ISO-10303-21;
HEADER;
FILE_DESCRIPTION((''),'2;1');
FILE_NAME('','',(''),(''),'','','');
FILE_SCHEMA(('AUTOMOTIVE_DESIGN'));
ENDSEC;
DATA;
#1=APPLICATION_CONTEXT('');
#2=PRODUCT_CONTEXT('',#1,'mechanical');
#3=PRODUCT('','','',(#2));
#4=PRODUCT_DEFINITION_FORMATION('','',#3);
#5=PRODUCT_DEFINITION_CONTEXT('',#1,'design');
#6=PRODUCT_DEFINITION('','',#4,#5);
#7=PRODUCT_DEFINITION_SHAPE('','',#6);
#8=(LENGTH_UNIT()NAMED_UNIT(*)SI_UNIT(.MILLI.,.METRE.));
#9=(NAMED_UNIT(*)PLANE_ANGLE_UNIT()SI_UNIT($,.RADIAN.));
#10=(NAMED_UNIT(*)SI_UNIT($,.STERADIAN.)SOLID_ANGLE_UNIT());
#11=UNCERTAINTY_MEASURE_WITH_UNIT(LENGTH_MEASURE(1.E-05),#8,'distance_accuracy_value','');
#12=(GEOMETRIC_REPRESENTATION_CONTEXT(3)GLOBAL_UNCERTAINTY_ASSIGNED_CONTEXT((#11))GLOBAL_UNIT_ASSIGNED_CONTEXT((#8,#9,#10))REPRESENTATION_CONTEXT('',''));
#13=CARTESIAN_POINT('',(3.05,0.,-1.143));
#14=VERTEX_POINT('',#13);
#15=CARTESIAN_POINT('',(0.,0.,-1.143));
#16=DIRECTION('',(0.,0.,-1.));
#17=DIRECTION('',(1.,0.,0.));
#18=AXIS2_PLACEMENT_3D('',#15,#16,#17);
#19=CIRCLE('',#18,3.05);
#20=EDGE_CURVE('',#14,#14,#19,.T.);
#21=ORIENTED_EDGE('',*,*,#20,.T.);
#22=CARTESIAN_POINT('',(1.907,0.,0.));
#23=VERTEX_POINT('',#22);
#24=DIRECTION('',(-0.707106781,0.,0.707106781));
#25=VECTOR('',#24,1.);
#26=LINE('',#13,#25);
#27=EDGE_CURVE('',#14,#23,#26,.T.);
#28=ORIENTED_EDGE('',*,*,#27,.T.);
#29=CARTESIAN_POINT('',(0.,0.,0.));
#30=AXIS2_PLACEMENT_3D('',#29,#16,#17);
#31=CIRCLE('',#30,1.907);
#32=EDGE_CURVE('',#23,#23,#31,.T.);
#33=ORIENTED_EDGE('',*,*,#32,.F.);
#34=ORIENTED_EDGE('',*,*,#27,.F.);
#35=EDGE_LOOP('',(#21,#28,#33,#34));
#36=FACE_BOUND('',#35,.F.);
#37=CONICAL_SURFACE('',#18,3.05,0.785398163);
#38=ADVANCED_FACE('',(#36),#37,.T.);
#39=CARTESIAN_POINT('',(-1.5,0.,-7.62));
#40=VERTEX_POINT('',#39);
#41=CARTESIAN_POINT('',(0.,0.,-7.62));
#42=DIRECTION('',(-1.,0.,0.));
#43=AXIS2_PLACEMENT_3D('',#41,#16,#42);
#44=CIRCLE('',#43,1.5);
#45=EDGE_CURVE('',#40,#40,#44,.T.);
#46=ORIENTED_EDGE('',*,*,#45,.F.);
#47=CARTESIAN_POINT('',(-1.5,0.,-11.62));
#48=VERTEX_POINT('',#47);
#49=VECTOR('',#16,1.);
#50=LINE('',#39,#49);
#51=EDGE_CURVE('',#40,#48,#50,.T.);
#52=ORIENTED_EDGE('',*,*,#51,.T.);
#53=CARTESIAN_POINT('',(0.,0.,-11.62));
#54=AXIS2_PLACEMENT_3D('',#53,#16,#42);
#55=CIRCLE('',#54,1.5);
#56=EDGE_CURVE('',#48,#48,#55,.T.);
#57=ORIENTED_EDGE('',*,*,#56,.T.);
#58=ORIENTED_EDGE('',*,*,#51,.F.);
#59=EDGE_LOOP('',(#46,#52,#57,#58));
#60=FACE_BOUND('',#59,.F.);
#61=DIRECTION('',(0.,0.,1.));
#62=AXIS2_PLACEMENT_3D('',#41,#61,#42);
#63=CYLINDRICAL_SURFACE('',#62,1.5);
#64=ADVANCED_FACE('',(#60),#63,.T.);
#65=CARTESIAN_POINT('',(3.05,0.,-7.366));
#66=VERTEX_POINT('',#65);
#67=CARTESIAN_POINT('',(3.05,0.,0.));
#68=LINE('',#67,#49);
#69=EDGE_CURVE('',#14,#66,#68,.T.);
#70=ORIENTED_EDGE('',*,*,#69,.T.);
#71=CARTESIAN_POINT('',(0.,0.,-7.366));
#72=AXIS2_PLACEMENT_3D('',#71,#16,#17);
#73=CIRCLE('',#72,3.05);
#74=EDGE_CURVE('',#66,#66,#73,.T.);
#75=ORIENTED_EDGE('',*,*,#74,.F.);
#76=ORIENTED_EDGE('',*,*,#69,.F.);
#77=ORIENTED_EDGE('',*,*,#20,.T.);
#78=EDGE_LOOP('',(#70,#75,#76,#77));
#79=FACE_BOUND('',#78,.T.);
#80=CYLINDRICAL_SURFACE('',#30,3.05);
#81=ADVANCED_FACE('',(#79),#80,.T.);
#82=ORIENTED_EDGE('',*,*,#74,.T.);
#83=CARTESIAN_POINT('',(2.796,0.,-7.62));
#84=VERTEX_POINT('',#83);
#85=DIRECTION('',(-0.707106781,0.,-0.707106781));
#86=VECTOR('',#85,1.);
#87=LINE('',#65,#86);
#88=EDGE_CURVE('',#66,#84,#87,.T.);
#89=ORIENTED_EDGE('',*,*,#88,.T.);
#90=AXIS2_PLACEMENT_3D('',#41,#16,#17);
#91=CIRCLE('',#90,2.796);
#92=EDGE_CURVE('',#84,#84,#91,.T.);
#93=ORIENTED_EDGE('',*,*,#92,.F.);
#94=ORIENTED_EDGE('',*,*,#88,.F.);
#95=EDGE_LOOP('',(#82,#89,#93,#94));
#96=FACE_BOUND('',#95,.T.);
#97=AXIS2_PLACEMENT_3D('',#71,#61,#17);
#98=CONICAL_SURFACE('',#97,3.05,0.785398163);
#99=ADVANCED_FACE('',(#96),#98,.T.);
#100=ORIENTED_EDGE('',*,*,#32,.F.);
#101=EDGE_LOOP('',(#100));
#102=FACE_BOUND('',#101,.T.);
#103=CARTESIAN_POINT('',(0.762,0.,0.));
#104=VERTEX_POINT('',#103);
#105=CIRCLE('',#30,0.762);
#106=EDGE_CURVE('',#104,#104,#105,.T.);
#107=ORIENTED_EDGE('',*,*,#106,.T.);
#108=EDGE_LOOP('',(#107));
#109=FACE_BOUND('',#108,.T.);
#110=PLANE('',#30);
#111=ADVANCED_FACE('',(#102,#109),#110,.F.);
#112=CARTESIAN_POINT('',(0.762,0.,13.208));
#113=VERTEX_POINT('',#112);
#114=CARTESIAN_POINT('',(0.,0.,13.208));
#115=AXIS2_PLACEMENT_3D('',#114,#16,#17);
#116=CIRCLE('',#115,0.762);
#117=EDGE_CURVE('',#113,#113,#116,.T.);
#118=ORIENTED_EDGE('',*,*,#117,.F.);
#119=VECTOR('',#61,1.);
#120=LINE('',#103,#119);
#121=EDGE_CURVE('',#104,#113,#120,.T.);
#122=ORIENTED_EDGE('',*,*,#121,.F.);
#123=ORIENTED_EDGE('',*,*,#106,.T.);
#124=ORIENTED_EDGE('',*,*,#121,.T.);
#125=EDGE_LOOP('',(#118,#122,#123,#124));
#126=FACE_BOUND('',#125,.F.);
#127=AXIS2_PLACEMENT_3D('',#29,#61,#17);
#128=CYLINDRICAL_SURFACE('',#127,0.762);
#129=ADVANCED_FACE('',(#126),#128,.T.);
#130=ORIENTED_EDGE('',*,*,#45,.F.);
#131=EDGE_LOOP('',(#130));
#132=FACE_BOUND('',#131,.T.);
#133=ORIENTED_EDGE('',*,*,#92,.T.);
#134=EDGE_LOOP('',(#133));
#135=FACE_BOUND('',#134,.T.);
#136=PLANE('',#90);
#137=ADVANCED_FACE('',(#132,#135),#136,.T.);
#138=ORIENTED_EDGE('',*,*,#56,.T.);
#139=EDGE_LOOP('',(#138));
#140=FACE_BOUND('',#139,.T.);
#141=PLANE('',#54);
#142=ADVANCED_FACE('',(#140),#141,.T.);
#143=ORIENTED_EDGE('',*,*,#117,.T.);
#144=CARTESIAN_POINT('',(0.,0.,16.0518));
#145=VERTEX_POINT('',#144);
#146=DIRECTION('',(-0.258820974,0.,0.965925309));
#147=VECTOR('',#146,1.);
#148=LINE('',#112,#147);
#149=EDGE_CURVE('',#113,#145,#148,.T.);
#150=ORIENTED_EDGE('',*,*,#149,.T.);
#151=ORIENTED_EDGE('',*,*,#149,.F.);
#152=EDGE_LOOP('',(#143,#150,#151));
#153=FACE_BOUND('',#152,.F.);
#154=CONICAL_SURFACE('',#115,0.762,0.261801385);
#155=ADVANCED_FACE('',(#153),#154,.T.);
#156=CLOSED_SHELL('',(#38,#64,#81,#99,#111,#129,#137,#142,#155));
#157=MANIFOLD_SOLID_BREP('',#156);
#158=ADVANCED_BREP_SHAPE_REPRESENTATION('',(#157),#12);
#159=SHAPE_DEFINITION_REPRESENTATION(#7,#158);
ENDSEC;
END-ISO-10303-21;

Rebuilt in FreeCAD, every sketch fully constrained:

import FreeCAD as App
import Part
import Sketcher
from FreeCAD import Vector
Q = App.Units.Quantity


def edges_at(feature, points):
    """Names of the edges that pass closest to the given points."""
    edges = feature.Shape.Edges
    near = lambda p: min(range(len(edges)), key=lambda i: edges[i].distToShape(Part.Vertex(*p))[0])
    return sorted({f"Edge{near(p) + 1}" for p in points})


def add_polygon(sketch, points):
    """Adds a closed chain of lines whose ends are joined by coincident constraints."""
    first, n = sketch.GeometryCount, len(points)
    for a, b in zip(points, points[1:] + points[:1]):
        sketch.addGeometry(Part.LineSegment(App.Vector(*a, 0), App.Vector(*b, 0)), False)
    for i in range(n):
        sketch.addConstraint(Sketcher.Constraint("Coincident", first + i, 2, first + (i + 1) % n, 1))

doc = App.newDocument("Part")
body = doc.addObject("PartDesign::Body", "Body")

sketch1 = doc.addObject("Sketcher::SketchObject", "Sketch")
body.addObject(sketch1)
sketch1.AttachmentSupport = (doc.XZ_Plane, [""])
sketch1.MapMode = "FlatFace"
add_polygon(sketch1, [(0, -7.62), (0, 16.0518), (0.762, 13.208), (0.762, 0), (3.05, 0), (3.05, -7.62)])
sketch1.addConstraint(Sketcher.Constraint("Vertical", 0))
sketch1.addConstraint(Sketcher.Constraint("Vertical", 2))
sketch1.addConstraint(Sketcher.Constraint("Horizontal", 3))
sketch1.addConstraint(Sketcher.Constraint("Vertical", 4))
sketch1.addConstraint(Sketcher.Constraint("Horizontal", 5))
sketch1.addConstraint(Sketcher.Constraint("PointOnObject", 0, 2, -2))
sketch1.addConstraint(Sketcher.Constraint("PointOnObject", 2, 2, -1))
sketch1.addConstraint(Sketcher.Constraint("DistanceY", 4, 2, 4, 1, Q("0.3 in")))
sketch1.addConstraint(Sketcher.Constraint("Angle", 1, Q("-75 deg")))
sketch1.addConstraint(Sketcher.Constraint("DistanceY", 2, 2, 2, 1, Q("0.52 in")))
sketch1.addConstraint(Sketcher.Constraint("DistanceX", -1, 1, 1, 2, Q("0.03 in")))
sketch1.addConstraint(Sketcher.Constraint("DistanceX", 5, 2, 5, 1, 3.05))
revolution = doc.addObject("PartDesign::Revolution", "Revolution")
body.addObject(revolution)
revolution.Profile = sketch1
revolution.ReferenceAxis = (sketch1, ["V_Axis"])
revolution.Angle = 360

sketch2 = doc.addObject("Sketcher::SketchObject", "Sketch001")
body.addObject(sketch2)
sketch2.AttachmentSupport = (doc.XY_Plane, [""])
sketch2.MapMode = "FlatFace"
sketch2.AttachmentOffset = App.Placement(Vector(0, 0, -0.3 * 25.4), App.Rotation())
sketch2.addGeometry(Part.Circle(Vector(0, 0, 0), Vector(0, 0, 1), 1.5), False)
sketch2.addConstraint(Sketcher.Constraint("Coincident", 0, 3, -1, 1))
sketch2.addConstraint(Sketcher.Constraint("Diameter", 0, Q("0.1181 in")))
pad1 = doc.addObject("PartDesign::Pad", "Pad")
body.addObject(pad1)
pad1.Profile = sketch2
pad1.Length = 4
pad1.Reversed = True
doc.recompute()

chamfer = doc.addObject("PartDesign::Chamfer", "Chamfer")
body.addObject(chamfer)
chamfer.Base = (pad1, edges_at(pad1, [(-3.05, 0, 0)]))
chamfer.Size = Q("0.045 in")
doc.recompute()

chamfer2 = doc.addObject("PartDesign::Chamfer", "Chamfer001")
body.addObject(chamfer2)
chamfer2.Base = (chamfer, edges_at(chamfer, [(-3.05, 0, -7.62)]))
chamfer2.Size = Q("0.01 in")

doc.recompute()
